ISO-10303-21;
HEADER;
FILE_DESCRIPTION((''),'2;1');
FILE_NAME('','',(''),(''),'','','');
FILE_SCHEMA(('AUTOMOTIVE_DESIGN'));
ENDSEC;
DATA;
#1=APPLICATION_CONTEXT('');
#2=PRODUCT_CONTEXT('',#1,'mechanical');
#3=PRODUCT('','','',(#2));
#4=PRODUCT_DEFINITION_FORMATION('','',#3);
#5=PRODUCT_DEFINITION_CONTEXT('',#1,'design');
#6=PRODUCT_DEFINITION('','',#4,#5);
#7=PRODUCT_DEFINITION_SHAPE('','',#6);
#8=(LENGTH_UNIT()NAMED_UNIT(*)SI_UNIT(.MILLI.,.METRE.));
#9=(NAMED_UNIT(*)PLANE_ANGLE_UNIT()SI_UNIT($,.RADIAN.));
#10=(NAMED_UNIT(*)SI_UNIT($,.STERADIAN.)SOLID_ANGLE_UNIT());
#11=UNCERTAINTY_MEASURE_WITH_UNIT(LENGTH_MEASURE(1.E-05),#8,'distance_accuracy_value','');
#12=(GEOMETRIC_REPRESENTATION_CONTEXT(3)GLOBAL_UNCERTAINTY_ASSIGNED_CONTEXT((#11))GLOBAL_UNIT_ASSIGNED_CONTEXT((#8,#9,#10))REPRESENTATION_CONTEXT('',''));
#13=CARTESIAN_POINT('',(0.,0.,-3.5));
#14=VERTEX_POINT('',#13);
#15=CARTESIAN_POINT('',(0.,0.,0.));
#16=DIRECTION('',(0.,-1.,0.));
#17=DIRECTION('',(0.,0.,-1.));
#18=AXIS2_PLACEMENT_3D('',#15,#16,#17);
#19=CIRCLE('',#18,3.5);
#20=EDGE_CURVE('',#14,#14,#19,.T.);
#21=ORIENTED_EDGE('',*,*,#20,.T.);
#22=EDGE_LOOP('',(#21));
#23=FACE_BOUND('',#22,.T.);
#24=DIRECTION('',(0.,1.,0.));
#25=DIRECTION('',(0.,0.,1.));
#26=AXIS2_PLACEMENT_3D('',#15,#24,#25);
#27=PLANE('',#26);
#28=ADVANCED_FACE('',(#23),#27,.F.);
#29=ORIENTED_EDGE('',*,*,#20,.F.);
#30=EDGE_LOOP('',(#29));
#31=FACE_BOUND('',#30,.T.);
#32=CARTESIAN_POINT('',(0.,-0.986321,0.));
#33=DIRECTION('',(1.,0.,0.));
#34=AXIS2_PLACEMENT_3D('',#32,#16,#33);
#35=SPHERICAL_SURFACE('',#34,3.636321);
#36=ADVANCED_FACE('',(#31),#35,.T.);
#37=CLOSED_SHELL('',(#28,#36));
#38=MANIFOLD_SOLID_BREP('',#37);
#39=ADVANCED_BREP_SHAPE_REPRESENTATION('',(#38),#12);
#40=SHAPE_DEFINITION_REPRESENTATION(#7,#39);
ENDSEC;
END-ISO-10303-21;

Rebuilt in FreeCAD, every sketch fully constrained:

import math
import FreeCAD as App
import Part
import Sketcher
from FreeCAD import Vector
Q = App.Units.Quantity

doc = App.newDocument("Part")
params = doc.addObject("Spreadsheet::Sheet", "Params")
for row, (alias, value) in enumerate([
    ("sketch1_width", "3.5 mm"),
    ("sketch1_height", "2.65 mm"),
    ("revolution_angle", "360 deg"),
], start=1):
    params.set(f"A{row}", alias)
    params.set(f"B{row}", "=" + value)
    params.setAlias(f"B{row}", alias)

body = doc.addObject("PartDesign::Body", "Body")

sketch1 = body.newObject("Sketcher::SketchObject", "Sketch")
sketch1.AttachmentSupport = (doc.getObject("XY_Plane"), [""])
sketch1.MapMode = "FlatFace"
sketch1.addGeometry(Part.LineSegment(Vector(-3.5, 0, 0), Vector(0, 0, 0)), False)
sketch1.addGeometry(Part.LineSegment(Vector(0, 0, 0), Vector(0, 2.6, 0)), False)
sketch1.addGeometry(Part.ArcOfCircle(Part.Circle(Vector(0, -1, 0), Vector(0, 0, 1), 3.6), math.radians(90), math.radians(164)), False)
sketch1.addConstraint(Sketcher.Constraint("Coincident", 0, 2, 1, 1))
sketch1.addConstraint(Sketcher.Constraint("Coincident", 1, 2, 2, 1))
sketch1.addConstraint(Sketcher.Constraint("Coincident", 2, 2, 0, 1))
sketch1.addConstraint(Sketcher.Constraint("Horizontal", 0))
sketch1.addConstraint(Sketcher.Constraint("Vertical", 1))
sketch1.addConstraint(Sketcher.Constraint("Coincident", 0, 2, -1, 1))
sketch1.addConstraint(Sketcher.Constraint("PointOnObject", 2, 3, -2))
sketch1.addConstraint(Sketcher.Constraint("DistanceX", 0, 1, 0, 2, Q("3.5 mm")))
sketch1.addConstraint(Sketcher.Constraint("DistanceY", 1, 1, 1, 2, Q("2.65 mm")))
sketch1.setExpression("Constraints[7]", "Params.sketch1_width")
sketch1.setExpression("Constraints[8]", "Params.sketch1_height")
revolution = body.newObject("PartDesign::Revolution", "Revolution")
revolution.Profile = sketch1
revolution.ReferenceAxis = (sketch1, ["V_Axis"])
revolution.setExpression("Angle", "Params.revolution_angle")

doc.recompute()
